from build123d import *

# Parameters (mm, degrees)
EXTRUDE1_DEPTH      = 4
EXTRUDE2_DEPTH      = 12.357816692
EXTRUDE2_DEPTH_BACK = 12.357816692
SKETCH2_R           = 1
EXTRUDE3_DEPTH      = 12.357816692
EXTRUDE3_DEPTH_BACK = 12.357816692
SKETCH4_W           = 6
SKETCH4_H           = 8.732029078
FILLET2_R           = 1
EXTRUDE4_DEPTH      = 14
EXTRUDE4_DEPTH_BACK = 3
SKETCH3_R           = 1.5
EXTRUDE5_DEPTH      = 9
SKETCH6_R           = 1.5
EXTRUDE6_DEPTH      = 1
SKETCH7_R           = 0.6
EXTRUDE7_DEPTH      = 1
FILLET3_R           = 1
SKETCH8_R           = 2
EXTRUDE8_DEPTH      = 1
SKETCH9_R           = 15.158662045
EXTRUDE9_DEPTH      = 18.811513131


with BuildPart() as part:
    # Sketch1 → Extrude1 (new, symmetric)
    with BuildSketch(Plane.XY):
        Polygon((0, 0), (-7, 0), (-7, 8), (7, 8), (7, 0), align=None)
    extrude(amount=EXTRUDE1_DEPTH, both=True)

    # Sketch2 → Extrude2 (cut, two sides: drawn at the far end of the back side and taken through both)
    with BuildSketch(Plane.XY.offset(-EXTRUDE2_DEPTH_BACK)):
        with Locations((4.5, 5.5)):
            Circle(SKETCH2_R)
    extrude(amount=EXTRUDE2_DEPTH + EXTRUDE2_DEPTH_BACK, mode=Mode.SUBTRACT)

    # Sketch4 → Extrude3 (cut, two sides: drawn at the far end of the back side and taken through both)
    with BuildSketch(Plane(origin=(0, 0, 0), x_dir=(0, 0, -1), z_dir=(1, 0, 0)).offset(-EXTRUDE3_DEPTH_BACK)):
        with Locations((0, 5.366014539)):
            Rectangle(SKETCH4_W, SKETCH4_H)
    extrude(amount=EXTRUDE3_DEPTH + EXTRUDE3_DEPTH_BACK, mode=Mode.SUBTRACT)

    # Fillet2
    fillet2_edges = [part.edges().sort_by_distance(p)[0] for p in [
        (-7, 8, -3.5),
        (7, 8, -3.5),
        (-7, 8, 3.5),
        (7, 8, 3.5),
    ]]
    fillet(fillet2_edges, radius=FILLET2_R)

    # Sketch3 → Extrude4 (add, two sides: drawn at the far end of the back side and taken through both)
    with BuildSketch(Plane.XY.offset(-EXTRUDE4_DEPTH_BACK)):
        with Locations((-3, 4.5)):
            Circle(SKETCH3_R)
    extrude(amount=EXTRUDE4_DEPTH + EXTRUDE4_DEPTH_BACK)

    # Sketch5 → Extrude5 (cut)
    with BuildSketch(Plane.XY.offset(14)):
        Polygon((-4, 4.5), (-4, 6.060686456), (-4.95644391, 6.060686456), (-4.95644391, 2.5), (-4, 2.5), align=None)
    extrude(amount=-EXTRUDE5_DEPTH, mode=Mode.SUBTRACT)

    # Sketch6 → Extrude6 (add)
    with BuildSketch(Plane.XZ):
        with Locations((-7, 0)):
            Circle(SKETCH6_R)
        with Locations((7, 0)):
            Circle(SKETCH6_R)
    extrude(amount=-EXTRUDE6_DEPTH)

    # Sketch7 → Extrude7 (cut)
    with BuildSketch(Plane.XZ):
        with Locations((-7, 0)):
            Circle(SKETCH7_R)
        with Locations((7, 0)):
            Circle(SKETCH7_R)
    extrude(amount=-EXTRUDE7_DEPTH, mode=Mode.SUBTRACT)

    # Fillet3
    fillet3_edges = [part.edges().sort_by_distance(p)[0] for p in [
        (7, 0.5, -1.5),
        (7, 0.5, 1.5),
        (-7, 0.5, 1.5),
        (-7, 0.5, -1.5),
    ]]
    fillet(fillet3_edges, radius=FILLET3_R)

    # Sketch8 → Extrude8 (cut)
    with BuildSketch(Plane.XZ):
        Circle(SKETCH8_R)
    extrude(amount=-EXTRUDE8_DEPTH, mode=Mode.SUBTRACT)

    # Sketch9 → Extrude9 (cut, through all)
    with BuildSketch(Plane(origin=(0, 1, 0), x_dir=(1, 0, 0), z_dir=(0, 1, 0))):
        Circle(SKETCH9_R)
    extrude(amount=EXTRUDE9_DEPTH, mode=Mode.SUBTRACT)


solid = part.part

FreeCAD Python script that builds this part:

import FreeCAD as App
import Part
import Sketcher
from FreeCAD import Vector
Q = App.Units.Quantity


def edges_at(feature, points):
    """Names of the edges that pass closest to the given points."""
    edges = feature.Shape.Edges
    near = lambda p: min(range(len(edges)), key=lambda i: edges[i].distToShape(Part.Vertex(*p))[0])
    return sorted({f"Edge{near(p) + 1}" for p in points})

doc = App.newDocument("Part")
body = doc.addObject("PartDesign::Body", "Body")

# Sketch on XY plane
sketch1 = body.newObject("Sketcher::SketchObject", "Sketch")
sketch1.AttachmentSupport = (doc.getObject("XY_Plane"), [""])
sketch1.MapMode = "FlatFace"
sketch1.addGeometry([
    Part.LineSegment(Vector(-7, 0, 0), Vector(7, 0, 0)),
    Part.LineSegment(Vector(7, 0, 0), Vector(7, 8, 0)),
    Part.LineSegment(Vector(7, 8, 0), Vector(-7, 8, 0)),
    Part.LineSegment(Vector(-7, 8, 0), Vector(-7, 0, 0)),
], False)
sketch1.addConstraint([
    Sketcher.Constraint("Coincident", 0, 2, 1, 1),
    Sketcher.Constraint("Coincident", 1, 2, 2, 1),
    Sketcher.Constraint("Coincident", 2, 2, 3, 1),
    Sketcher.Constraint("Coincident", 3, 2, 0, 1),
    Sketcher.Constraint("Horizontal", 0),
    Sketcher.Constraint("Vertical", 1),
    Sketcher.Constraint("Horizontal", 2),
    Sketcher.Constraint("Vertical", 3),
    Sketcher.Constraint("Symmetric", 0, 2, 3, 2, -1, 1),
    Sketcher.Constraint("DistanceX", 0, 1, 0, 2, Q("14 mm")),
    Sketcher.Constraint("DistanceY", 1, 1, 1, 2, Q("8 mm")),
])
pad1 = body.newObject("PartDesign::Pad", "Pad")
pad1.Profile = sketch1
pad1.Length = 8
pad1.Midplane = True

# Sketch on XY plane
sketch2 = body.newObject("Sketcher::SketchObject", "Sketch001")
sketch2.AttachmentSupport = (doc.getObject("XY_Plane"), [""])
sketch2.MapMode = "FlatFace"
sketch2.addGeometry(Part.Circle(Vector(4.5, 5.5, 0), Vector(0, 0, 1), 1), False)
sketch2.addConstraint([
    Sketcher.Constraint("Diameter", 0, Q("2 mm")),
    Sketcher.Constraint("DistanceX", -1, 1, 0, 3, Q("4.5 mm")),
    Sketcher.Constraint("DistanceY", -1, 1, 0, 3, Q("5.5 mm")),
])
pocket1 = body.newObject("PartDesign::Pocket", "Pocket")
pocket1.Profile = sketch2
pocket1.Type = "ThroughAll"
pocket1.Midplane = True

# Sketch on YZ plane
sketch3 = body.newObject("Sketcher::SketchObject", "Sketch002")
sketch3.AttachmentSupport = (doc.getObject("YZ_Plane"), [""])
sketch3.MapMode = "FlatFace"
sketch3.addGeometry([
    Part.LineSegment(Vector(10, 3, 0), Vector(1, 3, 0)),
    Part.LineSegment(Vector(1, 3, 0), Vector(1, -3, 0)),
    Part.LineSegment(Vector(1, -3, 0), Vector(10, -3, 0)),
    Part.LineSegment(Vector(10, -3, 0), Vector(10, 3, 0)),
], False)
sketch3.addConstraint([
    Sketcher.Constraint("Coincident", 0, 2, 1, 1),
    Sketcher.Constraint("Coincident", 1, 2, 2, 1),
    Sketcher.Constraint("Coincident", 2, 2, 3, 1),
    Sketcher.Constraint("Coincident", 3, 2, 0, 1),
    Sketcher.Constraint("Horizontal", 0),
    Sketcher.Constraint("Vertical", 1),
    Sketcher.Constraint("Horizontal", 2),
    Sketcher.Constraint("Vertical", 3),
    Sketcher.Constraint("DistanceY", 1, 2, 1, 1, Q("6 mm")),
    Sketcher.Constraint("DistanceX", -1, 1, 0, 2, Q("1 mm")),
    Sketcher.Constraint("DistanceY", -1, 1, 0, 2, Q("3 mm")),
    Sketcher.Constraint("DistanceX", 0, 2, 0, 1, Q("8.732029 mm")),
])
pocket2 = body.newObject("PartDesign::Pocket", "Pocket001")
pocket2.Profile = sketch3
pocket2.Type = "ThroughAll"
pocket2.Midplane = True
doc.recompute()

fillet = body.newObject("PartDesign::Fillet", "Fillet")
fillet.Base = (pocket2, edges_at(pocket2, [
    (-7, 8, -3.5),
    (7, 8, -3.5),
    (-7, 8, 3.5),
    (7, 8, 3.5),
]))
fillet.Radius = 1

# Sketch on XY plane
sketch4 = body.newObject("Sketcher::SketchObject", "Sketch003")
sketch4.AttachmentSupport = (doc.getObject("XY_Plane"), [""])
sketch4.MapMode = "FlatFace"
sketch4.addGeometry(Part.Circle(Vector(-3, 4.5, 0), Vector(0, 0, 1), 1.5), False)
sketch4.addConstraint([
    Sketcher.Constraint("Diameter", 0, Q("3 mm")),
    Sketcher.Constraint("DistanceX", 0, 3, -1, 1, Q("3 mm")),
    Sketcher.Constraint("DistanceY", -1, 1, 0, 3, Q("4.5 mm")),
])
pad2 = body.newObject("PartDesign::Pad", "Pad001")
pad2.Profile = sketch4
pad2.Type = "TwoLengths"
pad2.Length = 14
pad2.Length2 = 3

# Sketch on XY plane
sketch5 = body.newObject("Sketcher::SketchObject", "Sketch004")
sketch5.AttachmentSupport = (doc.getObject("XY_Plane"), [""])
sketch5.MapMode = "FlatFace"
sketch5.AttachmentOffset = App.Placement(Vector(0, 0, 14), App.Rotation())
sketch5.addGeometry([
    Part.LineSegment(Vector(-4, 6.1, 0), Vector(-5, 6.1, 0)),
    Part.LineSegment(Vector(-5, 6.1, 0), Vector(-5, 2.5, 0)),
    Part.LineSegment(Vector(-5, 2.5, 0), Vector(-4, 2.5, 0)),
    Part.LineSegment(Vector(-4, 2.5, 0), Vector(-4, 6.1, 0)),
], False)
sketch5.addConstraint([
    Sketcher.Constraint("Coincident", 0, 2, 1, 1),
    Sketcher.Constraint("Coincident", 1, 2, 2, 1),
    Sketcher.Constraint("Coincident", 2, 2, 3, 1),
    Sketcher.Constraint("Coincident", 3, 2, 0, 1),
    Sketcher.Constraint("Horizontal", 0),
    Sketcher.Constraint("Vertical", 1),
    Sketcher.Constraint("Horizontal", 2),
    Sketcher.Constraint("Vertical", 3),
    Sketcher.Constraint("DistanceX", 2, 2, -1, 1, Q("4 mm")),
    Sketcher.Constraint("DistanceY", -1, 1, 1, 2, Q("2.5 mm")),
    Sketcher.Constraint("DistanceX", 0, 2, 0, 1, Q("0.956444 mm")),
    Sketcher.Constraint("DistanceY", 1, 2, 1, 1, Q("3.560686 mm")),
])
pocket3 = body.newObject("PartDesign::Pocket", "Pocket002")
pocket3.Profile = sketch5
pocket3.Length = 9

# Sketch on XZ plane
sketch6 = body.newObject("Sketcher::SketchObject", "Sketch005")
sketch6.AttachmentSupport = (doc.getObject("XZ_Plane"), [""])
sketch6.MapMode = "FlatFace"
sketch6.addGeometry([
    Part.Circle(Vector(-7, 0, 0), Vector(0, 0, 1), 1.5),
    Part.Circle(Vector(7, 0, 0), Vector(0, 0, 1), 1.5),
], False)
sketch6.addConstraint([
    Sketcher.Constraint("Equal", 0, 1),
    Sketcher.Constraint("Symmetric", 0, 3, 1, 3, -1, 1),
    Sketcher.Constraint("PointOnObject", 0, 3, -1),
    Sketcher.Constraint("Diameter", 0, Q("3 mm")),
    Sketcher.Constraint("DistanceX", 0, 3, -1, 1, Q("7 mm")),
])
pad3 = body.newObject("PartDesign::Pad", "Pad002")
pad3.Profile = sketch6
pad3.Length = 1
pad3.Reversed = True

# Sketch on XZ plane
sketch7 = body.newObject("Sketcher::SketchObject", "Sketch006")
sketch7.AttachmentSupport = (doc.getObject("XZ_Plane"), [""])
sketch7.MapMode = "FlatFace"
sketch7.addGeometry([
    Part.Circle(Vector(-7, 0, 0), Vector(0, 0, 1), 0.6),
    Part.Circle(Vector(7, 0, 0), Vector(0, 0, 1), 0.6),
], False)
sketch7.addConstraint([
    Sketcher.Constraint("Equal", 0, 1),
    Sketcher.Constraint("Symmetric", 0, 3, 1, 3, -1, 1),
    Sketcher.Constraint("PointOnObject", 0, 3, -1),
    Sketcher.Constraint("Diameter", 0, Q("1.2 mm")),
    Sketcher.Constraint("DistanceX", 0, 3, -1, 1, Q("7 mm")),
])
pocket4 = body.newObject("PartDesign::Pocket", "Pocket003")
pocket4.Profile = sketch7
pocket4.Length = 1
doc.recompute()

fillet2 = body.newObject("PartDesign::Fillet", "Fillet001")
fillet2.Base = (pocket4, edges_at(pocket4, [
    (7, 0.5, -1.5),
    (7, 0.5, 1.5),
    (-7, 0.5, 1.5),
    (-7, 0.5, -1.5),
]))
fillet2.Radius = 1

# Sketch on XZ plane
sketch8 = body.newObject("Sketcher::SketchObject", "Sketch007")
sketch8.AttachmentSupport = (doc.getObject("XZ_Plane"), [""])
sketch8.MapMode = "FlatFace"
sketch8.addGeometry(Part.Circle(Vector(0, 0, 0), Vector(0, 0, 1), 2), False)
sketch8.addConstraint([
    Sketcher.Constraint("Coincident", 0, 3, -1, 1),
    Sketcher.Constraint("Diameter", 0, Q("4 mm")),
])
pocket5 = body.newObject("PartDesign::Pocket", "Pocket004")
pocket5.Profile = sketch8
pocket5.Length = 1

# Sketch on XZ plane
sketch9 = body.newObject("Sketcher::SketchObject", "Sketch008")
sketch9.AttachmentSupport = (doc.getObject("XZ_Plane"), [""])
sketch9.MapMode = "FlatFace"
sketch9.AttachmentOffset = App.Placement(Vector(0, 0, -1), App.Rotation())
sketch9.addGeometry(Part.Circle(Vector(0, 0, 0), Vector(0, 0, 1), 15), False)
sketch9.addConstraint([
    Sketcher.Constraint("Coincident", 0, 3, -1, 1),
    Sketcher.Constraint("Diameter", 0, Q("30.317324 mm")),
])
pocket6 = body.newObject("PartDesign::Pocket", "Pocket005")
pocket6.Profile = sketch9
pocket6.Type = "ThroughAll"

doc.recompute()
